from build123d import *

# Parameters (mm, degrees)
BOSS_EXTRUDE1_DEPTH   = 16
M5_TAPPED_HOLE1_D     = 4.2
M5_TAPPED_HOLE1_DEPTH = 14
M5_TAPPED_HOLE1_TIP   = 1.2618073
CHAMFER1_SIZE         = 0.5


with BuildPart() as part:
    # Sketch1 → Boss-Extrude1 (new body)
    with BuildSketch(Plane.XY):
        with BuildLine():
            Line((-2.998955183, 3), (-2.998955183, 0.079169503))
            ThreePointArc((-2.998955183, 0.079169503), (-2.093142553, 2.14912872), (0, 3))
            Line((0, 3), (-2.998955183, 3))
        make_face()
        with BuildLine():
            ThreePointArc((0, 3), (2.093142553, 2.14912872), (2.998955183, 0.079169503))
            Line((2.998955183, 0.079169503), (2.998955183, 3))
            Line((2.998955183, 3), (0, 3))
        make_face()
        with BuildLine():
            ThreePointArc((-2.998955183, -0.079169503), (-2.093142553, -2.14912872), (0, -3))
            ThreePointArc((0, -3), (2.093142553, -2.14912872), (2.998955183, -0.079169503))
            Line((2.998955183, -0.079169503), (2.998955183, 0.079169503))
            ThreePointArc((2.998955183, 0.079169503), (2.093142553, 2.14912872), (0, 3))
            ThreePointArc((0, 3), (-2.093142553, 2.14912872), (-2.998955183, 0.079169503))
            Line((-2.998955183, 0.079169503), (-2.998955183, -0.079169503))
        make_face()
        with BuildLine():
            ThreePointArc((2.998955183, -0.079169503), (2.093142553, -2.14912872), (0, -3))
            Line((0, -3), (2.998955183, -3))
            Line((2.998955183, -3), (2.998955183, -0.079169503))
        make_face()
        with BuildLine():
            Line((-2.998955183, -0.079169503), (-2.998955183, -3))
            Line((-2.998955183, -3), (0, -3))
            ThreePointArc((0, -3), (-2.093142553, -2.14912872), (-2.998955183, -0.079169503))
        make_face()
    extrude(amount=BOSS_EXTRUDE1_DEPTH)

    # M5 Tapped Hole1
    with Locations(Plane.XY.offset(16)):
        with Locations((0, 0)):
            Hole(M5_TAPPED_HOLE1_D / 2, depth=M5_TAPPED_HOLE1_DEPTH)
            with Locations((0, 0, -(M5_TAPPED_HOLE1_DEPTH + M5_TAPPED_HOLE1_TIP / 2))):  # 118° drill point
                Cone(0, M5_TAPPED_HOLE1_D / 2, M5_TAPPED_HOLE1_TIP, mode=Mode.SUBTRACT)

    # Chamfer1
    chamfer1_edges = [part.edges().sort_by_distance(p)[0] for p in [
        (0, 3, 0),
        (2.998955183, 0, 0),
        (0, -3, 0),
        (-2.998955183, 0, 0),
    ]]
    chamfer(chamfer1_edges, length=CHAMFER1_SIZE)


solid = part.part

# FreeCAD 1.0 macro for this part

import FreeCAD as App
import Part
import Sketcher
Q = App.Units.Quantity


def edges_at(feature, points):
    """Names of the edges that pass closest to the given points."""
    edges = feature.Shape.Edges
    near = lambda p: min(range(len(edges)), key=lambda i: edges[i].distToShape(Part.Vertex(*p))[0])
    return sorted({f"Edge{near(p) + 1}" for p in points})

doc = App.newDocument("Part")
params = doc.addObject("Spreadsheet::Sheet", "Params")
for row, (alias, value) in enumerate([
    ("sketch1_height", "6 mm"),
    ("pad1_length", "16 mm"),
    ("sketch2_diameter", "4.2 mm"),
    ("hole_diameter", "4.2 mm"),
    ("hole_depth", "14 mm"),
    ("chamfer_size", "0.5 mm"),
], start=1):
    params.set(f"A{row}", alias)
    params.set(f"B{row}", "=" + value)
    params.setAlias(f"B{row}", alias)

body = doc.addObject("PartDesign::Body", "Body")

# Sketch on XY plane
sketch1 = body.newObject("Sketcher::SketchObject", "Sketch")
sketch1.AttachmentSupport = (doc.getObject("XY_Plane"), [""])
sketch1.MapMode = "FlatFace"
sketch1.addGeometry([
    Part.LineSegment(App.Vector(-3, 3, 0), App.Vector(-3, -3, 0)),
    Part.LineSegment(App.Vector(-3, -3, 0), App.Vector(3, -3, 0)),
    Part.LineSegment(App.Vector(3, -3, 0), App.Vector(3, 3, 0)),
    Part.LineSegment(App.Vector(3, 3, 0), App.Vector(-3, 3, 0)),
], False)
sketch1.addConstraint([
    Sketcher.Constraint("Coincident", 0, 2, 1, 1),
    Sketcher.Constraint("Coincident", 1, 2, 2, 1),
    Sketcher.Constraint("Coincident", 2, 2, 3, 1),
    Sketcher.Constraint("Coincident", 3, 2, 0, 1),
    Sketcher.Constraint("Vertical", 0),
    Sketcher.Constraint("Horizontal", 1),
    Sketcher.Constraint("Vertical", 2),
    Sketcher.Constraint("Horizontal", 3),
    Sketcher.Constraint("Symmetric", 0, 2, 2, 2, -1, 1),
    Sketcher.Constraint("DistanceY", 0, 2, 0, 1, Q("6 mm")),
    Sketcher.Constraint("DistanceX", 1, 1, 1, 2, Q("5.99791 mm")),
])
sketch1.setExpression("Constraints[9]", "Params.sketch1_height")
pad1 = body.newObject("PartDesign::Pad", "Pad")
pad1.Profile = sketch1
pad1.setExpression("Length", "Params.pad1_length")

# Sketch on XY plane
sketch2 = body.newObject("Sketcher::SketchObject", "Sketch001")
sketch2.AttachmentSupport = (doc.getObject("XY_Plane"), [""])
sketch2.MapMode = "FlatFace"
sketch2.AttachmentOffset = App.Placement(App.Vector(0, 0, 16), App.Rotation())
sketch2.addGeometry(Part.Circle(App.Vector(0, 0, 0), App.Vector(0, 0, 1), 2.1), False)
sketch2.addConstraint([
    Sketcher.Constraint("Coincident", 0, 3, -1, 1),
    Sketcher.Constraint("Diameter", 0, Q("4.2 mm")),
])
sketch2.setExpression("Constraints[1]", "Params.sketch2_diameter")
doc.recompute()
hole = body.newObject("PartDesign::Hole", "Hole")
hole.Profile = sketch2
hole.ThreadType = "None"
hole.setExpression("Diameter", "Params.hole_diameter")
hole.DepthType = "Dimension"
hole.setExpression("Depth", "Params.hole_depth")
hole.DrillPoint = "Angled"
hole.DrillPointAngle = 118
doc.recompute()

chamfer = body.newObject("PartDesign::Chamfer", "Chamfer")
chamfer.Base = (hole, edges_at(hole, [
    (0, 3, 0),
    (2.999, 0, 0),
    (0, -3, 0),
    (-2.999, 0, 0),
]))
chamfer.setExpression("Size", "Params.chamfer_size")

doc.recompute()
